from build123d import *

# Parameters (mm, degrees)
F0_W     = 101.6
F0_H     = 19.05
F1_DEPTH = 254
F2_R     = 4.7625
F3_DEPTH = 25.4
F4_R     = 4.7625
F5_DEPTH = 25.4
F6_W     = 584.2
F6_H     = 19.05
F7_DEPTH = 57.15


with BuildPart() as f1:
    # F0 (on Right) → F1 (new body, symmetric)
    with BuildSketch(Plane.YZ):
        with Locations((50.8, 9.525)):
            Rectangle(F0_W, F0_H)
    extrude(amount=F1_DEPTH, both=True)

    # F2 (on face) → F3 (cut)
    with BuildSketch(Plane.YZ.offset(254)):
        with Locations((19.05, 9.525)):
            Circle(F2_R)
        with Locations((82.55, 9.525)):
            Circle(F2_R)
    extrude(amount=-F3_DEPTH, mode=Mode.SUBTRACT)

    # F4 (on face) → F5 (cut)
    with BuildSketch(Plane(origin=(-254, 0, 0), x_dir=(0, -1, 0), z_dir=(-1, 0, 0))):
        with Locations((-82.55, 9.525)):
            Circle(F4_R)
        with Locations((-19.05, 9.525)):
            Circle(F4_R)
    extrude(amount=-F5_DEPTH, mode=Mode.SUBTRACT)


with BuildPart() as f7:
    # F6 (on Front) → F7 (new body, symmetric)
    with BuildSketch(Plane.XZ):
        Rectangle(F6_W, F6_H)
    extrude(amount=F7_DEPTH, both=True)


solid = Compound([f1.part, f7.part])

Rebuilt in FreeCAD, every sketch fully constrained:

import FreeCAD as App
import Part
import Sketcher
from FreeCAD import Vector
Q = App.Units.Quantity

doc = App.newDocument("Part")
body = doc.addObject("PartDesign::Body", "Body")

# Sketch on YZ plane
sketch1 = body.newObject("Sketcher::SketchObject", "Sketch")
sketch1.AttachmentSupport = (doc.getObject("YZ_Plane"), [""])
sketch1.MapMode = "FlatFace"
sketch1.addGeometry([
    Part.LineSegment(Vector(0, 19, 0), Vector(0, 0, 0)),
    Part.LineSegment(Vector(0, 0, 0), Vector(102, 0, 0)),
    Part.LineSegment(Vector(102, 0, 0), Vector(102, 19, 0)),
    Part.LineSegment(Vector(102, 19, 0), Vector(0, 19, 0)),
], False)
sketch1.addConstraint([
    Sketcher.Constraint("Coincident", 0, 2, 1, 1),
    Sketcher.Constraint("Coincident", 1, 2, 2, 1),
    Sketcher.Constraint("Coincident", 2, 2, 3, 1),
    Sketcher.Constraint("Coincident", 3, 2, 0, 1),
    Sketcher.Constraint("Vertical", 0),
    Sketcher.Constraint("Horizontal", 1),
    Sketcher.Constraint("Vertical", 2),
    Sketcher.Constraint("Horizontal", 3),
    Sketcher.Constraint("Coincident", 0, 2, -1, 1),
    Sketcher.Constraint("DistanceX", 1, 1, 1, 2, Q("4 in")),
    Sketcher.Constraint("DistanceY", 0, 2, 0, 1, Q("0.75 in")),
])
pad1 = body.newObject("PartDesign::Pad", "Pad")
pad1.Profile = sketch1
pad1.Length = Q("20 in")
pad1.Midplane = True

# Sketch on YZ plane
sketch2 = body.newObject("Sketcher::SketchObject", "Sketch001")
sketch2.AttachmentSupport = (doc.getObject("YZ_Plane"), [""])
sketch2.MapMode = "FlatFace"
sketch2.AttachmentOffset = App.Placement(Vector(0, 0, 10 * 25.4), App.Rotation())
sketch2.addGeometry([
    Part.Circle(Vector(19.1, 9.5, 0), Vector(0, 0, 1), 4.8),
    Part.Circle(Vector(82.5, 9.5, 0), Vector(0, 0, 1), 4.8),
], False)
sketch2.addConstraint([
    Sketcher.Constraint("Equal", 0, 1),
    Sketcher.Constraint("Horizontal", 0, 3, 1, 3),
    Sketcher.Constraint("Diameter", 0, Q("0.375 in")),
    Sketcher.Constraint("DistanceX", 0, 3, 1, 3, Q("2.5 in")),
    Sketcher.Constraint("DistanceX", -1, 1, 0, 3, Q("0.75 in")),
    Sketcher.Constraint("DistanceY", -1, 1, 0, 3, Q("0.375 in")),
])
pocket1 = body.newObject("PartDesign::Pocket", "Pocket")
pocket1.Profile = sketch2
pocket1.Length = Q("1 in")

# Sketch on YZ plane
sketch3 = body.newObject("Sketcher::SketchObject", "Sketch002")
sketch3.AttachmentSupport = (doc.getObject("YZ_Plane"), [""])
sketch3.MapMode = "FlatFace"
sketch3.AttachmentOffset = App.Placement(Vector(0, 0, -10 * 25.4), App.Rotation())
sketch3.addGeometry([
    Part.Circle(Vector(82.5, 9.5, 0), Vector(0, 0, 1), 4.8),
    Part.Circle(Vector(19.1, 9.5, 0), Vector(0, 0, 1), 4.8),
], False)
sketch3.addConstraint([
    Sketcher.Constraint("Equal", 0, 1),
    Sketcher.Constraint("Horizontal", 0, 3, 1, 3),
    Sketcher.Constraint("Diameter", 0, Q("0.375 in")),
    Sketcher.Constraint("DistanceX", 1, 3, 0, 3, Q("2.5 in")),
    Sketcher.Constraint("DistanceX", -1, 1, 0, 3, Q("3.25 in")),
    Sketcher.Constraint("DistanceY", -1, 1, 0, 3, Q("0.375 in")),
])
pocket2 = body.newObject("PartDesign::Pocket", "Pocket001")
pocket2.Profile = sketch3
pocket2.Length = Q("1 in")
pocket2.Reversed = True
body2 = doc.addObject("PartDesign::Body", "Body001")

# Sketch on XZ plane
sketch4 = body2.newObject("Sketcher::SketchObject", "Sketch003")
sketch4.AttachmentSupport = (doc.getObject("XZ_Plane001"), [""])
sketch4.MapMode = "FlatFace"
sketch4.addGeometry([
    Part.LineSegment(Vector(-292, 10, 0), Vector(-292, -10, 0)),
    Part.LineSegment(Vector(-292, -10, 0), Vector(292, -10, 0)),
    Part.LineSegment(Vector(292, -10, 0), Vector(292, 10, 0)),
    Part.LineSegment(Vector(292, 10, 0), Vector(-292, 10, 0)),
], False)
sketch4.addConstraint([
    Sketcher.Constraint("Coincident", 0, 2, 1, 1),
    Sketcher.Constraint("Coincident", 1, 2, 2, 1),
    Sketcher.Constraint("Coincident", 2, 2, 3, 1),
    Sketcher.Constraint("Coincident", 3, 2, 0, 1),
    Sketcher.Constraint("Vertical", 0),
    Sketcher.Constraint("Horizontal", 1),
    Sketcher.Constraint("Vertical", 2),
    Sketcher.Constraint("Horizontal", 3),
    Sketcher.Constraint("Symmetric", 0, 2, 2, 2, -1, 1),
    Sketcher.Constraint("DistanceX", 1, 1, 1, 2, Q("23 in")),
    Sketcher.Constraint("DistanceY", 0, 2, 0, 1, Q("0.75 in")),
])
pad2 = body2.newObject("PartDesign::Pad", "Pad001")
pad2.Profile = sketch4
pad2.Length = Q("4.5 in")
pad2.Midplane = True

doc.recompute()
